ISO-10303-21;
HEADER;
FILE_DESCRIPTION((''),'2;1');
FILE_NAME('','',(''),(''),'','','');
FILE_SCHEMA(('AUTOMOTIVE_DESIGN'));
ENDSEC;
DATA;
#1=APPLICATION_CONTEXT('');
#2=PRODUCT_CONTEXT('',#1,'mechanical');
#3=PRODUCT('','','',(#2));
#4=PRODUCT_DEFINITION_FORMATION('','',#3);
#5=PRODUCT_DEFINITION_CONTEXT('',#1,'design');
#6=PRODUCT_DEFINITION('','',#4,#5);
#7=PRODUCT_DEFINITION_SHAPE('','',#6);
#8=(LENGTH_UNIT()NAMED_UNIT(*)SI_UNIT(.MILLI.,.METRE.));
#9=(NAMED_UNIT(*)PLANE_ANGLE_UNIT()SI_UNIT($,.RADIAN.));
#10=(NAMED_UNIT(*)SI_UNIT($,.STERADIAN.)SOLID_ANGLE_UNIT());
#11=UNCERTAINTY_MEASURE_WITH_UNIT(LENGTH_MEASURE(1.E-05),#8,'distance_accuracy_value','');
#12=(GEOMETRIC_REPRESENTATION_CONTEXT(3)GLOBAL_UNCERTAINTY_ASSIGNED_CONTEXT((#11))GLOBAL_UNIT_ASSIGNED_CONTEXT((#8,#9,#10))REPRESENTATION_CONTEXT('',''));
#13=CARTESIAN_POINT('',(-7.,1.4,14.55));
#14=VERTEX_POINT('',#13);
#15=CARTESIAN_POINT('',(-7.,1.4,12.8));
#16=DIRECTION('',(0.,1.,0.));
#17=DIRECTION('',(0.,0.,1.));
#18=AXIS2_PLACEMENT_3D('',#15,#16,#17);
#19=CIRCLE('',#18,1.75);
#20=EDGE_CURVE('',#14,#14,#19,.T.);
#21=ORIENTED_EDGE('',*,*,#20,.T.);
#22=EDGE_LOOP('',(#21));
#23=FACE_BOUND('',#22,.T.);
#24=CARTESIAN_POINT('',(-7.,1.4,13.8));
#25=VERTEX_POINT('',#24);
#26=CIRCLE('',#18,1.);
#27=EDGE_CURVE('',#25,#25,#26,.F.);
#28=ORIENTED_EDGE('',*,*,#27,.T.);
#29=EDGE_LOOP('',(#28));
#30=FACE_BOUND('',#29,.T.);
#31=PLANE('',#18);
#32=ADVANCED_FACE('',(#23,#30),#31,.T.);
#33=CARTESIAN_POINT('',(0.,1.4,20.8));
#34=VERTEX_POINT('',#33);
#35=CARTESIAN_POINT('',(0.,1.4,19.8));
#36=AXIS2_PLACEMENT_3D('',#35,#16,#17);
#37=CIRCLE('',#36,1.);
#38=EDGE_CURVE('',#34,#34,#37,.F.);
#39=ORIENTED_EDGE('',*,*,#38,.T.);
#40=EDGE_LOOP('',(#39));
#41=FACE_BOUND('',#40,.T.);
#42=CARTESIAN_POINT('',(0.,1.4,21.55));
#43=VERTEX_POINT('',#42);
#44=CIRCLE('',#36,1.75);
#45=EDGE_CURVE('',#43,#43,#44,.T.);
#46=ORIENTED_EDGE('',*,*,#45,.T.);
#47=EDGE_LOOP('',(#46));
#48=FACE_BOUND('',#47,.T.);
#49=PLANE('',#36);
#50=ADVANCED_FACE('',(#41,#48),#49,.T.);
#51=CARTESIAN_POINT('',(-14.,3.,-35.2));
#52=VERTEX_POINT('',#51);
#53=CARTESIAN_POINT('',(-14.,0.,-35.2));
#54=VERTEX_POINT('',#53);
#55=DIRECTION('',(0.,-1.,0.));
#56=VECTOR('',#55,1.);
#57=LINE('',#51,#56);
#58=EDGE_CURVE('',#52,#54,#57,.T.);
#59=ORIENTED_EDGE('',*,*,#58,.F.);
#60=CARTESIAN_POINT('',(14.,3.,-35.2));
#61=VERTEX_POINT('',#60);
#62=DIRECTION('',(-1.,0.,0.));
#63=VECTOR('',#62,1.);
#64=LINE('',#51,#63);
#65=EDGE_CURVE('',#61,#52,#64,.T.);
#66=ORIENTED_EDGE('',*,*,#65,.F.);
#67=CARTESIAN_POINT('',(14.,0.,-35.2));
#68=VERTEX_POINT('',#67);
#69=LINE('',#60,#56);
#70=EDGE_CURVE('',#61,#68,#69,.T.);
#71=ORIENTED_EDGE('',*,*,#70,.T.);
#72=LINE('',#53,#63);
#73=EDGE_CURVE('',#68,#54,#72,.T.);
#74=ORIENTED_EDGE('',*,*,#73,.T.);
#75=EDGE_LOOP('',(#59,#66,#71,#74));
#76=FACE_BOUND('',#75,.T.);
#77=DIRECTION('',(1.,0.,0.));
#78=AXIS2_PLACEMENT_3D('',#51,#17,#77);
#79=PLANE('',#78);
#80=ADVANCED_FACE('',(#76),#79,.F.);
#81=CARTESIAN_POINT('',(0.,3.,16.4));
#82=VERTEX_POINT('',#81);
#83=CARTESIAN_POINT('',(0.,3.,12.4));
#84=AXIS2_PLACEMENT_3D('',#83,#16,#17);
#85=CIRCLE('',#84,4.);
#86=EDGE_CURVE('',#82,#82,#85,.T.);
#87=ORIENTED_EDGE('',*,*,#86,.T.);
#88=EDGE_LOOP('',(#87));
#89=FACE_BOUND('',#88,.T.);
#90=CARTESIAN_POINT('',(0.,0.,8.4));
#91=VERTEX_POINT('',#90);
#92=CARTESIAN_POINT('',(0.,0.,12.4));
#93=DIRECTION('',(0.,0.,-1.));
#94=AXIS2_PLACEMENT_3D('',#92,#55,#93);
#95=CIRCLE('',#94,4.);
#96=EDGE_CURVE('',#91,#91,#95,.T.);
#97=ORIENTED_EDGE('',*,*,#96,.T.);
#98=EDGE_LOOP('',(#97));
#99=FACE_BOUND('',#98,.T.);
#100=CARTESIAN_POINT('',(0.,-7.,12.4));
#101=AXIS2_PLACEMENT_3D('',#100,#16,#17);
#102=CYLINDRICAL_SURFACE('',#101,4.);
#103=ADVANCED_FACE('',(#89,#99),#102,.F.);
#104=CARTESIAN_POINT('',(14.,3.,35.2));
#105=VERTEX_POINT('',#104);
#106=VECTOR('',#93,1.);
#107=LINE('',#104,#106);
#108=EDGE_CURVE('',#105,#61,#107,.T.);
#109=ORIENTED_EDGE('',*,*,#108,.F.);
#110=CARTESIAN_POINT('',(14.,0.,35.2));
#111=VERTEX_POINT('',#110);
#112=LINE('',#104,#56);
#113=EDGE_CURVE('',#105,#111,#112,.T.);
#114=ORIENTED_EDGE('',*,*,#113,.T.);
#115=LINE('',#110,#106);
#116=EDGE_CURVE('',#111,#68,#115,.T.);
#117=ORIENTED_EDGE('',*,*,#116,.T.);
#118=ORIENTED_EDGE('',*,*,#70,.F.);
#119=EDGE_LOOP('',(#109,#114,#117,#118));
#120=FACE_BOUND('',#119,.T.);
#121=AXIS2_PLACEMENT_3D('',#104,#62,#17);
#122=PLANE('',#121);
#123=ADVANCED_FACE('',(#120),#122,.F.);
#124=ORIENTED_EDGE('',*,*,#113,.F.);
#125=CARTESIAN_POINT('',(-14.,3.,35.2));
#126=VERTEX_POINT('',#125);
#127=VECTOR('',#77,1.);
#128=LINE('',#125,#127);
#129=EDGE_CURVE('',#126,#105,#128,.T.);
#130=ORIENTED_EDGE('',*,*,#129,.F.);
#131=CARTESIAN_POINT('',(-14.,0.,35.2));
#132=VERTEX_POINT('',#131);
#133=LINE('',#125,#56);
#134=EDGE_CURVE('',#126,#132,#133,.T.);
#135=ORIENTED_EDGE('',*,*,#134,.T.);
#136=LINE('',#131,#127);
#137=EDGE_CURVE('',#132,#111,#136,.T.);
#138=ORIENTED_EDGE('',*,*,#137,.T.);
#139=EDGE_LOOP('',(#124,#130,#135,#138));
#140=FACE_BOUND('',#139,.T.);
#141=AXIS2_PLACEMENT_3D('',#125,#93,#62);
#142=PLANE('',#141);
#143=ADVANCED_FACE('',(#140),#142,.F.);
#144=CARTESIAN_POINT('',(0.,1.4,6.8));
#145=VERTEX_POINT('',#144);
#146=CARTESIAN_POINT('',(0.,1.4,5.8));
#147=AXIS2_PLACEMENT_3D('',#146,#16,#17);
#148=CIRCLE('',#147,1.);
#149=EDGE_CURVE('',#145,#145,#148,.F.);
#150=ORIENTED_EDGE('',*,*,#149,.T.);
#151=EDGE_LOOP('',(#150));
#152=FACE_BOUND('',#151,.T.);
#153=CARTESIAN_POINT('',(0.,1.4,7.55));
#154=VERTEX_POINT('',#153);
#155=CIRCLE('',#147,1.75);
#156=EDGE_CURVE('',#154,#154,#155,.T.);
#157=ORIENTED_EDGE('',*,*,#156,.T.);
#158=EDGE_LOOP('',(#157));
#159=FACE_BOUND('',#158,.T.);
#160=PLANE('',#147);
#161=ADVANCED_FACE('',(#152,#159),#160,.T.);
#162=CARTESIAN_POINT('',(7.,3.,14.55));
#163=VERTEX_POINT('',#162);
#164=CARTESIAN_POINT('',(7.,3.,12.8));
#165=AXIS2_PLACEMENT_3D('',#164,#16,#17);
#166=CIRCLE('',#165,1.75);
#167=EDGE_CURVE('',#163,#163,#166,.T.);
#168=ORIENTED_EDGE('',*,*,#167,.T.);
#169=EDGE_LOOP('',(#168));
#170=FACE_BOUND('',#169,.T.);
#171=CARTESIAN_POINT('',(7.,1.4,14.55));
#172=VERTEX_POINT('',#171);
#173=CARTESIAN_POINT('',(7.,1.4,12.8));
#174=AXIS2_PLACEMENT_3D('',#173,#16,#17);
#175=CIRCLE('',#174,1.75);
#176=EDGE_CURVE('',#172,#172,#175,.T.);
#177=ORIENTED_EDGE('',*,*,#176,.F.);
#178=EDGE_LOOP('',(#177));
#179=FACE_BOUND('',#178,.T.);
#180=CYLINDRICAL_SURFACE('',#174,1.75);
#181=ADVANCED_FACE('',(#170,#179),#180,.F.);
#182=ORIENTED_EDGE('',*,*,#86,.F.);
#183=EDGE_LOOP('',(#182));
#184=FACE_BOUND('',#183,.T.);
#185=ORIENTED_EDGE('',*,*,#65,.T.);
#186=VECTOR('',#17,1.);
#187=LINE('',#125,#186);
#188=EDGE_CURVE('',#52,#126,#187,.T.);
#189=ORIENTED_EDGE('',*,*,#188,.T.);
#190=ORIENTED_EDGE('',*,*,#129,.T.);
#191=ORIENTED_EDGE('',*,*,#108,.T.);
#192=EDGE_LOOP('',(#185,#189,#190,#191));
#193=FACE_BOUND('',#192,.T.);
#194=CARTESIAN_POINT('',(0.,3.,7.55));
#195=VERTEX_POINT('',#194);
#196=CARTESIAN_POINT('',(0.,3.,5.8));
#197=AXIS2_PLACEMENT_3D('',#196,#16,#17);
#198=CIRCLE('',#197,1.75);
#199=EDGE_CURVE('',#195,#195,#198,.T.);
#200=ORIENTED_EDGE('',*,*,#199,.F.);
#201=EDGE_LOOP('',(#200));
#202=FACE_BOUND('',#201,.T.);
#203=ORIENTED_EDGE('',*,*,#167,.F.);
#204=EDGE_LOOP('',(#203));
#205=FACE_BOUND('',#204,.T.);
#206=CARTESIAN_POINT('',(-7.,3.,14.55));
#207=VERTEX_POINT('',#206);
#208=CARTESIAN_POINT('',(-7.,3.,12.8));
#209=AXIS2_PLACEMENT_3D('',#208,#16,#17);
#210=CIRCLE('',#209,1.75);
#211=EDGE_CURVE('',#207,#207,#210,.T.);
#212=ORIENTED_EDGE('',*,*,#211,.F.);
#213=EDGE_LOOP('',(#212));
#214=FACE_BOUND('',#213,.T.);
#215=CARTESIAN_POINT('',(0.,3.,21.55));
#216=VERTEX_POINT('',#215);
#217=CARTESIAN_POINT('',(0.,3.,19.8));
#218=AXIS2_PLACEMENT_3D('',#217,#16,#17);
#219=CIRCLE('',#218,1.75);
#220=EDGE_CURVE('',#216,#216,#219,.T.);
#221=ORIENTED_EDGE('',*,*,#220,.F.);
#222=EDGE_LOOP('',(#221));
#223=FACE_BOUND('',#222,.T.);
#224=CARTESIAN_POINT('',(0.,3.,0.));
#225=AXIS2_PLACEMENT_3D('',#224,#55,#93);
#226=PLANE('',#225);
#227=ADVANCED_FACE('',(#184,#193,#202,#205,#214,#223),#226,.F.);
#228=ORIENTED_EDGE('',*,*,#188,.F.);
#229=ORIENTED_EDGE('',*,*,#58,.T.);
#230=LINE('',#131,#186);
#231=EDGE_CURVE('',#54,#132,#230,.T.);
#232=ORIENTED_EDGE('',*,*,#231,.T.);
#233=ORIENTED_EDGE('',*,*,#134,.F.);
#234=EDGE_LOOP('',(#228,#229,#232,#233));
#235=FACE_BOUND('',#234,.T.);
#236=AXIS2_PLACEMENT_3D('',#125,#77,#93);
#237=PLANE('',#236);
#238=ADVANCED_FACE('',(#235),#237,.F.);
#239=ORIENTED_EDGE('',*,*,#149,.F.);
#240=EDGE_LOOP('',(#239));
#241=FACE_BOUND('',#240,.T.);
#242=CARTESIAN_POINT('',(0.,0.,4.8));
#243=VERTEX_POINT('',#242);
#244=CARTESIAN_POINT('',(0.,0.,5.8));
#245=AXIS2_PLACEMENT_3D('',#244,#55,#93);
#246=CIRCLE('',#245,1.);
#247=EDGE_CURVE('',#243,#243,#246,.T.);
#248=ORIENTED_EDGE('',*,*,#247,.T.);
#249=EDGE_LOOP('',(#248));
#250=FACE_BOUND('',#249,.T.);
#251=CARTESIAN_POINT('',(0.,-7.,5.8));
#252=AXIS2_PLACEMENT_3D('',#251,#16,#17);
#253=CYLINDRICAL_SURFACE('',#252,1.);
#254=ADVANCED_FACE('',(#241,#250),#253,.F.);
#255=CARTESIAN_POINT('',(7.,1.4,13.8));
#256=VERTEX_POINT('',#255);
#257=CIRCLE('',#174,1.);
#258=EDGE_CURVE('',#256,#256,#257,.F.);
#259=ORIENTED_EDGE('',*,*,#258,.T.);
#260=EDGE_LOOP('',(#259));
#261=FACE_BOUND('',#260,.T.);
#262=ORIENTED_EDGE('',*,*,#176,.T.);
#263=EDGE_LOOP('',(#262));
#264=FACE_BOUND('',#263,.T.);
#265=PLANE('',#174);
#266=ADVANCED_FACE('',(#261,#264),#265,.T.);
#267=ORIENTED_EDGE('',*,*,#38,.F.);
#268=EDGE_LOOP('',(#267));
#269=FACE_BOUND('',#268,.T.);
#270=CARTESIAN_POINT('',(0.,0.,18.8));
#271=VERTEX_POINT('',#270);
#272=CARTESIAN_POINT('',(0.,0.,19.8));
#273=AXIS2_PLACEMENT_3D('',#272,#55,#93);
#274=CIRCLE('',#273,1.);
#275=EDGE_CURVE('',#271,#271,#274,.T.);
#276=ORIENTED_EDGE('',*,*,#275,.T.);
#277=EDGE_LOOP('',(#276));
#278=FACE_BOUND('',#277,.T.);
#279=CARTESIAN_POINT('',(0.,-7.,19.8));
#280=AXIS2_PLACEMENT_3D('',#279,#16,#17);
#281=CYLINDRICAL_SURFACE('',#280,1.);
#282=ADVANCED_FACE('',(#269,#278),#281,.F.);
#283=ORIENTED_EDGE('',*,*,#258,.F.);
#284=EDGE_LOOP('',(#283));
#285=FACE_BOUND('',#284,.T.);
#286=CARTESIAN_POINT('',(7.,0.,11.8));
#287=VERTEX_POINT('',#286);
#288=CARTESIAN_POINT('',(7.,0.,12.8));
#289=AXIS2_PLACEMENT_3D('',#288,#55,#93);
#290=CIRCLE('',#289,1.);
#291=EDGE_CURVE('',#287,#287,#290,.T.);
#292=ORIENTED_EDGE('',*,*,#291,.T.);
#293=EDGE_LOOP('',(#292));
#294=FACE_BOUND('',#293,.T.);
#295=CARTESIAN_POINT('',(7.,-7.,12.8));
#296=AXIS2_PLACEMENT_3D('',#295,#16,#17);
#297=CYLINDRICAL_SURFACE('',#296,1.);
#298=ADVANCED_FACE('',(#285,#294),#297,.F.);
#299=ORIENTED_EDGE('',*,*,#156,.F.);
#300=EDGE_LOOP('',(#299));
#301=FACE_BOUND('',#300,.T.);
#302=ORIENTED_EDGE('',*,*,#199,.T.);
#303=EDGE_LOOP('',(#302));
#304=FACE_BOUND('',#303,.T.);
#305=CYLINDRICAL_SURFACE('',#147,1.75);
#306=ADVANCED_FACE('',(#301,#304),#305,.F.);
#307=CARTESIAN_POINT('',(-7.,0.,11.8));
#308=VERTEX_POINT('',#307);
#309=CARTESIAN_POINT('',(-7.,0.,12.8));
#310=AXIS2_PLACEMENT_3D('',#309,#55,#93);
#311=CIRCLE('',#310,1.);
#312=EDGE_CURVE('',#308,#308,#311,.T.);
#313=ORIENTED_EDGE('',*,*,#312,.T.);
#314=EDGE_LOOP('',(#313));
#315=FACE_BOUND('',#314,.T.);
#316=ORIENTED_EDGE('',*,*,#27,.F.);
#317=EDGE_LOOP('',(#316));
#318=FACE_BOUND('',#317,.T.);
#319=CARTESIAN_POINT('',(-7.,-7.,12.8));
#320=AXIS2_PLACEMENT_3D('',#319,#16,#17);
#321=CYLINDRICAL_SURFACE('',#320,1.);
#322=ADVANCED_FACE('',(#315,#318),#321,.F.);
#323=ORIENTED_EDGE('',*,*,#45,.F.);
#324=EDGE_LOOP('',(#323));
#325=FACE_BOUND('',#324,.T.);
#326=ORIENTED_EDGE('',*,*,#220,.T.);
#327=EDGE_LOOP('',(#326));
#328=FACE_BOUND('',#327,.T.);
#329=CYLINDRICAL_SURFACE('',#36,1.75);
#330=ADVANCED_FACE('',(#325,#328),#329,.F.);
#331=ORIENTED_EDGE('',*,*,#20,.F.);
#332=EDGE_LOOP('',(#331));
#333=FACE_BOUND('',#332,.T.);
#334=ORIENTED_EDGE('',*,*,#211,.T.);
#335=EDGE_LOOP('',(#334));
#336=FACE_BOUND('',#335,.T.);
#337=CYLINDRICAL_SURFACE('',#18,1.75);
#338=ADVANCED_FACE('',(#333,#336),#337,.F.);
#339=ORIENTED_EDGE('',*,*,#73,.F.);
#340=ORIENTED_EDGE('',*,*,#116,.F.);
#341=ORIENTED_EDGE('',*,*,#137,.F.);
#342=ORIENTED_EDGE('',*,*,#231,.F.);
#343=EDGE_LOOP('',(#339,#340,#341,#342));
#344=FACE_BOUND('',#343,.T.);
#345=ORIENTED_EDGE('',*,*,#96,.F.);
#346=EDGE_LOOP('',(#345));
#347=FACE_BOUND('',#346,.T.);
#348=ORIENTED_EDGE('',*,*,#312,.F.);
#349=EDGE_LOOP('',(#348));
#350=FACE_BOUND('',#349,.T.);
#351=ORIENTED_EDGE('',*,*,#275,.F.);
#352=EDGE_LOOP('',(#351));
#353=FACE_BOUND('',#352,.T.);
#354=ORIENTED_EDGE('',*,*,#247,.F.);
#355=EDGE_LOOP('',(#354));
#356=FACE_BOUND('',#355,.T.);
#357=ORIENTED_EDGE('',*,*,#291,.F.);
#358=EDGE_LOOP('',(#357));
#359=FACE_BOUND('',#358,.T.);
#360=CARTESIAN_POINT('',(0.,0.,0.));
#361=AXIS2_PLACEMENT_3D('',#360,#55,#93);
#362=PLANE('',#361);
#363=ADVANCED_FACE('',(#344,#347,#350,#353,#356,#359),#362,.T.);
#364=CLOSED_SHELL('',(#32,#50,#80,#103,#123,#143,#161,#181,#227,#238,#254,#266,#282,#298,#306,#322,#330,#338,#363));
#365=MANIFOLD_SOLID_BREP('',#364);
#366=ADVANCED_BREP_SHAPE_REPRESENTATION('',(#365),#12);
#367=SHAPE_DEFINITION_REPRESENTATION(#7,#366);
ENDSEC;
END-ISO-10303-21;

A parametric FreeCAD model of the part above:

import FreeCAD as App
import Part
import Sketcher

V = App.Vector
Q = App.Units.Quantity


def add_polygon(sketch, points):
    """Adds a closed chain of lines whose ends are joined by coincident constraints."""
    first, n = sketch.GeometryCount, len(points)
    for a, b in zip(points, points[1:] + points[:1]):
        sketch.addGeometry(Part.LineSegment(App.Vector(*a, 0), App.Vector(*b, 0)), False)
    for i in range(n):
        sketch.addConstraint(Sketcher.Constraint("Coincident", first + i, 2, first + (i + 1) % n, 1))

doc = App.newDocument("Part")
body = doc.addObject("PartDesign::Body", "Body")

sketch1 = body.newObject("Sketcher::SketchObject", "Sketch")
sketch1.AttachmentSupport = (doc.getObject("XZ_Plane"), [""])
sketch1.MapMode = "FlatFace"
add_polygon(sketch1, [(-14, -35.2), (-14, 35.2), (14, 35.2), (14, -35.2)])
sketch1.addConstraint([
    Sketcher.Constraint("Vertical", 0),
    Sketcher.Constraint("Horizontal", 1),
    Sketcher.Constraint("Vertical", 2),
    Sketcher.Constraint("Horizontal", 3),
    Sketcher.Constraint("Symmetric", 0, 2, 2, 2, -1, 1),
    Sketcher.Constraint("DistanceX", 1, 1, 1, 2, Q("28 mm")),
    Sketcher.Constraint("DistanceY", 0, 1, 0, 2, Q("70.4 mm")),
])
pad1 = body.newObject("PartDesign::Pad", "Pad")
pad1.Profile = sketch1
pad1.Length = 3
pad1.Reversed = True

sketch2 = body.newObject("Sketcher::SketchObject", "Sketch001")
sketch2.AttachmentSupport = (doc.getObject("XZ_Plane"), [""])
sketch2.MapMode = "FlatFace"
sketch2.AttachmentOffset = App.Placement(V(0, 0, -3), App.Rotation())
sketch2.addGeometry([
    Part.Circle(V(7, 12.8, 0), V(0, 0, 1), 1),
    Part.Circle(V(0, 19.8, 0), V(0, 0, 1), 1),
    Part.Circle(V(-7, 12.8, 0), V(0, 0, 1), 1),
    Part.Circle(V(0, 5.8, 0), V(0, 0, 1), 1),
], False)
sketch2.addConstraint([
    Sketcher.Constraint("Equal", 0, 1),
    Sketcher.Constraint("Equal", 1, 2),
    Sketcher.Constraint("Equal", 2, 3),
    Sketcher.Constraint("Symmetric", 0, 3, 2, 3, -2),
    Sketcher.Constraint("PointOnObject", 1, 3, -2),
    Sketcher.Constraint("PointOnObject", 3, 3, -2),
    Sketcher.Constraint("Diameter", 0, Q("2 mm")),
    Sketcher.Constraint("DistanceX", -1, 1, 0, 3, Q("7 mm")),
    Sketcher.Constraint("DistanceY", 0, 3, 1, 3, Q("7 mm")),
    Sketcher.Constraint("DistanceY", 3, 3, 0, 3, Q("7 mm")),
    Sketcher.Constraint("DistanceY", -1, 1, 0, 3, Q("12.8 mm")),
])
pocket1 = body.newObject("PartDesign::Pocket", "Pocket")
pocket1.Profile = sketch2
pocket1.Length = 10
pocket1.Reversed = True

sketch3 = body.newObject("Sketcher::SketchObject", "Sketch002")
sketch3.AttachmentSupport = (doc.getObject("XZ_Plane"), [""])
sketch3.MapMode = "FlatFace"
sketch3.AttachmentOffset = App.Placement(V(0, 0, -3), App.Rotation())
sketch3.addGeometry(Part.Circle(V(0, 12.4, 0), V(0, 0, 1), 4), False)
sketch3.addConstraint([
    Sketcher.Constraint("PointOnObject", 0, 3, -2),
    Sketcher.Constraint("Diameter", 0, Q("8 mm")),
    Sketcher.Constraint("DistanceY", -1, 1, 0, 3, Q("12.4 mm")),
])
pocket2 = body.newObject("PartDesign::Pocket", "Pocket001")
pocket2.Profile = sketch3
pocket2.Length = 10
pocket2.Reversed = True

sketch4 = body.newObject("Sketcher::SketchObject", "Sketch003")
sketch4.AttachmentSupport = (doc.getObject("XZ_Plane"), [""])
sketch4.MapMode = "FlatFace"
sketch4.AttachmentOffset = App.Placement(V(0, 0, -3), App.Rotation())
sketch4.addGeometry([
    Part.Circle(V(0, 19.8, 0), V(0, 0, 1), 1.75),
    Part.Circle(V(-7, 12.8, 0), V(0, 0, 1), 1.75),
    Part.Circle(V(0, 5.8, 0), V(0, 0, 1), 1.75),
    Part.Circle(V(7, 12.8, 0), V(0, 0, 1), 1.75),
], False)
sketch4.addConstraint([
    Sketcher.Constraint("Equal", 0, 1),
    Sketcher.Constraint("Equal", 1, 2),
    Sketcher.Constraint("Equal", 2, 3),
    Sketcher.Constraint("Symmetric", 1, 3, 3, 3, -2),
    Sketcher.Constraint("PointOnObject", 0, 3, -2),
    Sketcher.Constraint("PointOnObject", 2, 3, -2),
    Sketcher.Constraint("Diameter", 0, Q("3.5 mm")),
    Sketcher.Constraint("DistanceX", 1, 3, -1, 1, Q("7 mm")),
    Sketcher.Constraint("DistanceY", 1, 3, 0, 3, Q("7 mm")),
    Sketcher.Constraint("DistanceY", 2, 3, 1, 3, Q("7 mm")),
    Sketcher.Constraint("DistanceY", -1, 1, 0, 3, Q("19.8 mm")),
])
pocket3 = body.newObject("PartDesign::Pocket", "Pocket002")
pocket3.Profile = sketch4
pocket3.Length = 1.6
pocket3.Reversed = True

doc.recompute()
